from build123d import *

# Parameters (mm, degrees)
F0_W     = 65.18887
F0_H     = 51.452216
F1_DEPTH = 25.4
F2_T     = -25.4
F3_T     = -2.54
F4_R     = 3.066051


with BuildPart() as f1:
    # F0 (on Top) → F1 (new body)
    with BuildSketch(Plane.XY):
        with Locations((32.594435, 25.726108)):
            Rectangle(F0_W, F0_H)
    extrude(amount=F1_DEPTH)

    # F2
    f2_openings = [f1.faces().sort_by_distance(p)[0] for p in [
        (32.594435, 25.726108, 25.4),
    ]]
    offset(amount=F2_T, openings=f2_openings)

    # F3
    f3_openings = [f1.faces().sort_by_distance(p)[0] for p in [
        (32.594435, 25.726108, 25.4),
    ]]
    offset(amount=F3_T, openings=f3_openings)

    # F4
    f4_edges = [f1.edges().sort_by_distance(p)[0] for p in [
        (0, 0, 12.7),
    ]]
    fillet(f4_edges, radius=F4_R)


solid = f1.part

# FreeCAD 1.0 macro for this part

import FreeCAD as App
import Part
import Sketcher
from FreeCAD import Vector
Q = App.Units.Quantity


def edges_at(feature, points):
    """Names of the edges that pass closest to the given points."""
    edges = feature.Shape.Edges
    near = lambda p: min(range(len(edges)), key=lambda i: edges[i].distToShape(Part.Vertex(*p))[0])
    return sorted({f"Edge{near(p) + 1}" for p in points})


def faces_at(feature, points):
    """Names of the faces that lie closest to the given points."""
    faces = feature.Shape.Faces
    near = lambda p: min(range(len(faces)), key=lambda i: faces[i].distToShape(Part.Vertex(*p))[0])
    return sorted({f"Face{near(p) + 1}" for p in points})


def add_polygon(sketch, points):
    """Adds a closed chain of lines whose ends are joined by coincident constraints."""
    first, n = sketch.GeometryCount, len(points)
    for a, b in zip(points, points[1:] + points[:1]):
        sketch.addGeometry(Part.LineSegment(App.Vector(*a, 0), App.Vector(*b, 0)), False)
    for i in range(n):
        sketch.addConstraint(Sketcher.Constraint("Coincident", first + i, 2, first + (i + 1) % n, 1))

doc = App.newDocument("Part")
body = doc.addObject("PartDesign::Body", "Body")

sketch1 = body.newObject("Sketcher::SketchObject", "Sketch")
sketch1.AttachmentSupport = (doc.getObject("XY_Plane"), [""])
sketch1.MapMode = "FlatFace"
add_polygon(sketch1, [(0, 51), (0, 0), (65, 0), (65, 51)])
sketch1.addConstraint(Sketcher.Constraint("Vertical", 0))
sketch1.addConstraint(Sketcher.Constraint("Horizontal", 1))
sketch1.addConstraint(Sketcher.Constraint("Vertical", 2))
sketch1.addConstraint(Sketcher.Constraint("Horizontal", 3))
sketch1.addConstraint(Sketcher.Constraint("Coincident", 0, 2, -1, 1))
sketch1.addConstraint(Sketcher.Constraint("DistanceX", 1, 1, 1, 2, 65.18887))
sketch1.addConstraint(Sketcher.Constraint("DistanceY", 0, 2, 0, 1, 51.452216))
pad1 = body.newObject("PartDesign::Pad", "Pad")
pad1.Profile = sketch1
pad1.Length = Q("1 in")
doc.recompute()

thickness = body.newObject("PartDesign::Thickness", "Thickness")
thickness.Base = (pad1, faces_at(pad1, [(32.594, 25.726, 25.4)]))
thickness.Value = Q("1 in")
thickness.Reversed = True
thickness.Join = "Arc"
doc.recompute()

thickness2 = body.newObject("PartDesign::Thickness", "Thickness001")
thickness2.Base = (thickness, faces_at(thickness, [(32.594, 25.726, 25.4)]))
thickness2.Value = Q("0.1 in")
thickness2.Reversed = True
thickness2.Join = "Arc"
doc.recompute()

fillet = body.newObject("PartDesign::Fillet", "Fillet")
fillet.Base = (thickness2, edges_at(thickness2, [(0, 0, 12.7)]))
fillet.Radius = 3.066051

doc.recompute()
